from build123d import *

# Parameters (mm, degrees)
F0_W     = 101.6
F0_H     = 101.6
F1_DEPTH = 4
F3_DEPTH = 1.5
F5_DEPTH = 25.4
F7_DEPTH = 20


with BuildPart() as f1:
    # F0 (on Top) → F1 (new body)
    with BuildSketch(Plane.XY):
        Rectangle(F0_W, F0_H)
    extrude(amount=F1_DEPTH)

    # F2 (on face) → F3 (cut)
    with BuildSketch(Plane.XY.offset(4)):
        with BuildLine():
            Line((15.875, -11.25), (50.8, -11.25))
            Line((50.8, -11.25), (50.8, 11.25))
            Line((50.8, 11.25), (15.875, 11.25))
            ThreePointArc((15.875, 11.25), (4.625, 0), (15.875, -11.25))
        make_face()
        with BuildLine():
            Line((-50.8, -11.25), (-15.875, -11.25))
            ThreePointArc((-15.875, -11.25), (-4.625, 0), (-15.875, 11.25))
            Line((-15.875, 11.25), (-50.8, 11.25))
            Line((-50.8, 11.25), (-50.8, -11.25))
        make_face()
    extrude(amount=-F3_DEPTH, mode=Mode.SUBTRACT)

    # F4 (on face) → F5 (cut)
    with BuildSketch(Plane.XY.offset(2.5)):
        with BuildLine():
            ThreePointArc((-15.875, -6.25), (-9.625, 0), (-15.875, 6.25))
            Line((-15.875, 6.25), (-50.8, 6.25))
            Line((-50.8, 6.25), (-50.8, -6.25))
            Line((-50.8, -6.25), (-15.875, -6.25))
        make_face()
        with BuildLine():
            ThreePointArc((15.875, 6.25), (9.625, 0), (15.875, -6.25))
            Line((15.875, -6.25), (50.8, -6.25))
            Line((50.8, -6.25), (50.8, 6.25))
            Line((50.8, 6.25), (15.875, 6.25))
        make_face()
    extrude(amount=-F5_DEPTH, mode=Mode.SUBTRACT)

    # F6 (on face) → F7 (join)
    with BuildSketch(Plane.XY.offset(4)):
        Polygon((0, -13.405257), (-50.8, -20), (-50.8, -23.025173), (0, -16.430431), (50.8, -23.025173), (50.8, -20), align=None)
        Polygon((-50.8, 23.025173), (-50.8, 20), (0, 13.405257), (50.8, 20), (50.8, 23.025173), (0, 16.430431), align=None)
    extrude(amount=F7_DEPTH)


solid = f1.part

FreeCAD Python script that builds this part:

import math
import FreeCAD as App
import Part
import Sketcher


def add_polygon(sketch, points):
    """Adds a closed chain of lines whose ends are joined by coincident constraints."""
    first, n = sketch.GeometryCount, len(points)
    for a, b in zip(points, points[1:] + points[:1]):
        sketch.addGeometry(Part.LineSegment(App.Vector(*a, 0), App.Vector(*b, 0)), False)
    for i in range(n):
        sketch.addConstraint(Sketcher.Constraint("Coincident", first + i, 2, first + (i + 1) % n, 1))

doc = App.newDocument("Part")
body = doc.addObject("PartDesign::Body", "Body")

# Sketch on XY plane
sketch1 = body.newObject("Sketcher::SketchObject", "Sketch")
sketch1.AttachmentSupport = (doc.getObject("XY_Plane"), [""])
sketch1.MapMode = "FlatFace"
add_polygon(sketch1, [(-51, 51), (-51, -51), (51, -51), (51, 51)])  # lines 0-3
sketch1.addConstraint([
    Sketcher.Constraint("Vertical", 0),
    Sketcher.Constraint("Horizontal", 1),
    Sketcher.Constraint("Vertical", 2),
    Sketcher.Constraint("Horizontal", 3),
    Sketcher.Constraint("Symmetric", 0, 2, 2, 2, -1, 1),
    Sketcher.Constraint("Equal", 3, 0),
    Sketcher.Constraint("DistanceX", 1, 1, 1, 2, 101.6),
])
pad1 = body.newObject("PartDesign::Pad", "Pad")
pad1.Profile = sketch1
pad1.Length = 4

# Sketch on XY plane
sketch2 = body.newObject("Sketcher::SketchObject", "Sketch001")
sketch2.AttachmentSupport = (doc.getObject("XY_Plane"), [""])
sketch2.MapMode = "FlatFace"
sketch2.AttachmentOffset = App.Placement(App.Vector(0, 0, 4), App.Rotation())
sketch2.addGeometry([
    Part.LineSegment(App.Vector(16, -11, 0), App.Vector(51, -11, 0)),  # 0
    Part.LineSegment(App.Vector(51, -11, 0), App.Vector(51, 11, 0)),  # 1
    Part.LineSegment(App.Vector(51, 11, 0), App.Vector(16, 11, 0)),  # 2
    Part.ArcOfCircle(Part.Circle(App.Vector(16, 0, 0), App.Vector(0, 0, 1), 11), math.radians(90), math.radians(270)),  # 3
    Part.LineSegment(App.Vector(-51, -11, 0), App.Vector(-16, -11, 0)),  # 4
    Part.ArcOfCircle(Part.Circle(App.Vector(-16, 0, 0), App.Vector(0, 0, 1), 11), math.radians(-90), math.radians(90)),  # 5
    Part.LineSegment(App.Vector(-16, 11, 0), App.Vector(-51, 11, 0)),  # 6
    Part.LineSegment(App.Vector(-51, 11, 0), App.Vector(-51, -11, 0)),  # 7
], False)
sketch2.addConstraint([
    Sketcher.Constraint("Coincident", 0, 2, 1, 1),
    Sketcher.Constraint("Coincident", 1, 2, 2, 1),
    Sketcher.Constraint("Tangent", 2, 2, 3, 1),
    Sketcher.Constraint("Tangent", 3, 2, 0, 1),
    Sketcher.Constraint("Tangent", 4, 2, 5, 1),
    Sketcher.Constraint("Tangent", 5, 2, 6, 1),
    Sketcher.Constraint("Coincident", 6, 2, 7, 1),
    Sketcher.Constraint("Coincident", 7, 2, 4, 1),
    Sketcher.Constraint("Horizontal", 0),
    Sketcher.Constraint("Vertical", 1),
    Sketcher.Constraint("Horizontal", 2),
    Sketcher.Constraint("Horizontal", 4),
    Sketcher.Constraint("Horizontal", 6),
    Sketcher.Constraint("Vertical", 7),
    Sketcher.Constraint("Equal", 3, 5),
    Sketcher.Constraint("Symmetric", 3, 3, 5, 3, -1, 1),
    Sketcher.Constraint("Symmetric", 1, 2, 6, 2, -2),
    Sketcher.Constraint("Radius", 3, 11.25),
    Sketcher.Constraint("DistanceX", -1, 1, 0, 2, 50.8),
    Sketcher.Constraint("DistanceX", 0, 1, 0, 2, 34.925),
])
pocket1 = body.newObject("PartDesign::Pocket", "Pocket")
pocket1.Profile = sketch2
pocket1.Length = 1.5

# Sketch on XY plane
sketch3 = body.newObject("Sketcher::SketchObject", "Sketch002")
sketch3.AttachmentSupport = (doc.getObject("XY_Plane"), [""])
sketch3.MapMode = "FlatFace"
sketch3.AttachmentOffset = App.Placement(App.Vector(0, 0, 2.5), App.Rotation())
sketch3.addGeometry([
    Part.ArcOfCircle(Part.Circle(App.Vector(-16, 0, 0), App.Vector(0, 0, 1), 6), math.radians(-90), math.radians(90)),  # 0
    Part.LineSegment(App.Vector(-16, 6, 0), App.Vector(-51, 6, 0)),  # 1
    Part.LineSegment(App.Vector(-51, 6, 0), App.Vector(-51, -6, 0)),  # 2
    Part.LineSegment(App.Vector(-51, -6, 0), App.Vector(-16, -6, 0)),  # 3
    Part.ArcOfCircle(Part.Circle(App.Vector(16, 0, 0), App.Vector(0, 0, 1), 6), math.radians(90), math.radians(270)),  # 4
    Part.LineSegment(App.Vector(16, -6, 0), App.Vector(51, -6, 0)),  # 5
    Part.LineSegment(App.Vector(51, -6, 0), App.Vector(51, 6, 0)),  # 6
    Part.LineSegment(App.Vector(51, 6, 0), App.Vector(16, 6, 0)),  # 7
], False)
sketch3.addConstraint([
    Sketcher.Constraint("Tangent", 0, 2, 1, 1),
    Sketcher.Constraint("Coincident", 1, 2, 2, 1),
    Sketcher.Constraint("Coincident", 2, 2, 3, 1),
    Sketcher.Constraint("Tangent", 3, 2, 0, 1),
    Sketcher.Constraint("Tangent", 4, 2, 5, 1),
    Sketcher.Constraint("Coincident", 5, 2, 6, 1),
    Sketcher.Constraint("Coincident", 6, 2, 7, 1),
    Sketcher.Constraint("Tangent", 7, 2, 4, 1),
    Sketcher.Constraint("Horizontal", 1),
    Sketcher.Constraint("Vertical", 2),
    Sketcher.Constraint("Horizontal", 3),
    Sketcher.Constraint("Horizontal", 5),
    Sketcher.Constraint("Vertical", 6),
    Sketcher.Constraint("Horizontal", 7),
    Sketcher.Constraint("Equal", 0, 4),
    Sketcher.Constraint("Symmetric", 0, 3, 4, 3, -1, 1),
    Sketcher.Constraint("Symmetric", 2, 2, 5, 2, -2),
    Sketcher.Constraint("Radius", 0, 6.25),
    Sketcher.Constraint("DistanceX", 1, 2, -1, 1, 50.8),
    Sketcher.Constraint("DistanceX", 1, 2, 1, 1, 34.925),
])
pocket2 = body.newObject("PartDesign::Pocket", "Pocket001")
pocket2.Profile = sketch3
pocket2.Length = 25.4

# Sketch on XY plane
sketch4 = body.newObject("Sketcher::SketchObject", "Sketch003")
sketch4.AttachmentSupport = (doc.getObject("XY_Plane"), [""])
sketch4.MapMode = "FlatFace"
sketch4.AttachmentOffset = App.Placement(App.Vector(0, 0, 4), App.Rotation())
add_polygon(sketch4, [(0, -13.4), (-50.8, -20), (-50.8, -23), (0, -16.4), (50.8, -23), (50.8, -20)])  # lines 0-5
add_polygon(sketch4, [(-50.8, 23), (-50.8, 20), (0, 13.4), (50.8, 20), (50.8, 23), (0, 16.4)])  # lines 6-11
sketch4.addConstraint([
    Sketcher.Constraint("Vertical", 1),
    Sketcher.Constraint("Vertical", 4),
    Sketcher.Constraint("Vertical", 6),
    Sketcher.Constraint("Vertical", 9),
    Sketcher.Constraint("Symmetric", 4, 2, 6, 2, -1, 1),
    Sketcher.Constraint("Symmetric", 5, 2, 7, 2, -1, 1),
    Sketcher.Constraint("Symmetric", 0, 2, 8, 2, -1, 1),
    Sketcher.Constraint("Symmetric", 2, 2, 10, 2, -1, 1),
    Sketcher.Constraint("Symmetric", 1, 2, 3, 2, -2),
    Sketcher.Constraint("PointOnObject", 2, 2, -2),
    Sketcher.Constraint("PointOnObject", 5, 2, -2),
    Sketcher.Constraint("Parallel", 0, 2),
    Sketcher.Constraint("Parallel", 3, 5),
    Sketcher.Constraint("Parallel", 8, 10),
    Sketcher.Constraint("Parallel", 7, 11),
    Sketcher.Constraint("DistanceY", 0, 2, -1, 1, 20.0),
    Sketcher.Constraint("DistanceX", 0, 2, -1, 1, 50.8),
    Sketcher.Constraint("Distance", 0, 51.226269),
    Sketcher.Constraint("DistanceY", 1, 2, 1, 1, 3.025173),
])
pad2 = body.newObject("PartDesign::Pad", "Pad001")
pad2.Profile = sketch4
pad2.Length = 20

doc.recompute()
